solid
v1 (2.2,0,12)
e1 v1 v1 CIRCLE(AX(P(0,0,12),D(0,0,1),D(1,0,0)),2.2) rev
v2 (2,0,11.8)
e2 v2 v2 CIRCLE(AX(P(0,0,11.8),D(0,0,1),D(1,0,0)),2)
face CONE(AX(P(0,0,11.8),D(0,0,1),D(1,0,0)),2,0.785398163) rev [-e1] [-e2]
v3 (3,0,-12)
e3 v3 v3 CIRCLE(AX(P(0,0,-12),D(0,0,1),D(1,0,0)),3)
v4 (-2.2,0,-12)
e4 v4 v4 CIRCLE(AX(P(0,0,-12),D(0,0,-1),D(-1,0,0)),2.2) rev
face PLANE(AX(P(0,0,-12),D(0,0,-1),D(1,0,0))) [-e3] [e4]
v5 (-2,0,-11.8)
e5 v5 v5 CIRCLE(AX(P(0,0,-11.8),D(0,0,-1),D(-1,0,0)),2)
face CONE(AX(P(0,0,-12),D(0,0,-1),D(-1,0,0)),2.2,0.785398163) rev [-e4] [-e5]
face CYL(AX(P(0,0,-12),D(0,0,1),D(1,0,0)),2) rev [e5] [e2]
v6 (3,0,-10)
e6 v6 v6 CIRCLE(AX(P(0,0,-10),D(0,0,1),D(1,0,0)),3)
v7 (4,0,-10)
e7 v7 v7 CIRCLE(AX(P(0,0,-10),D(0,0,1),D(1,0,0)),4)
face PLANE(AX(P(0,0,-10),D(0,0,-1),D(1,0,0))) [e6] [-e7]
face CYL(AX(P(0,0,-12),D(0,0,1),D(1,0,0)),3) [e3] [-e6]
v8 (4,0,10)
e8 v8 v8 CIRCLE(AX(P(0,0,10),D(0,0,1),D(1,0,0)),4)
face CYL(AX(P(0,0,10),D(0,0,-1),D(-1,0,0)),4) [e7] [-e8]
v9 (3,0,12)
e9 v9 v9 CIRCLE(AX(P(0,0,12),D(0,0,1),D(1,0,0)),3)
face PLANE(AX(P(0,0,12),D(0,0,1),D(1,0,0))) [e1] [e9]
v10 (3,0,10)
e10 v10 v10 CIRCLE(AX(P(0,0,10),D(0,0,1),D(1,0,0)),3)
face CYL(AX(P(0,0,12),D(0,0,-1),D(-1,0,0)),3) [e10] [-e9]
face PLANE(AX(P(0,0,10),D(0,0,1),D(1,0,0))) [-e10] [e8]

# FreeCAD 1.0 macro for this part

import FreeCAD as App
import Part
import Sketcher
from FreeCAD import Vector


def edges_at(feature, points):
    """Names of the edges that pass closest to the given points."""
    edges = feature.Shape.Edges
    near = lambda p: min(range(len(edges)), key=lambda i: edges[i].distToShape(Part.Vertex(*p))[0])
    return sorted({f"Edge{near(p) + 1}" for p in points})

doc = App.newDocument("Part")
body = doc.addObject("PartDesign::Body", "Body")

sketch1 = body.newObject("Sketcher::SketchObject", "Sketch")
sketch1.AttachmentSupport = (doc.getObject("XY_Plane"), [""])
sketch1.MapMode = "FlatFace"
sketch1.addGeometry(Part.Circle(Vector(0, 0, 0), Vector(0, 0, 1), 4), False)
sketch1.addConstraint(Sketcher.Constraint("Coincident", 0, 3, -1, 1))
sketch1.addConstraint(Sketcher.Constraint("Diameter", 0, 8.0))
pad1 = body.newObject("PartDesign::Pad", "Pad")
pad1.Profile = sketch1
pad1.Length = 10

sketch2 = body.newObject("Sketcher::SketchObject", "Sketch001")
sketch2.AttachmentSupport = (doc.getObject("XY_Plane"), [""])
sketch2.MapMode = "FlatFace"
sketch2.AttachmentOffset = App.Placement(Vector(0, 0, 10), App.Rotation())
sketch2.addGeometry(Part.Circle(Vector(0, 0, 0), Vector(0, 0, 1), 3), False)
sketch2.addConstraint(Sketcher.Constraint("Coincident", 0, 3, -1, 1))
sketch2.addConstraint(Sketcher.Constraint("Diameter", 0, 6.0))
pad2 = body.newObject("PartDesign::Pad", "Pad001")
pad2.Profile = sketch2
pad2.Length = 2
doc.recompute()

mirrored = body.newObject("PartDesign::Mirrored", "Mirrored")
mirrored.Originals = [pad1, pad2]
mirrored.MirrorPlane = (doc.getObject("XY_Plane"), [""])
body.Tip = mirrored

sketch3 = body.newObject("Sketcher::SketchObject", "Sketch002")
sketch3.AttachmentSupport = (doc.getObject("XY_Plane"), [""])
sketch3.MapMode = "FlatFace"
sketch3.AttachmentOffset = App.Placement(Vector(0, 0, 12), App.Rotation())
sketch3.addGeometry(Part.Circle(Vector(0, 0, 0), Vector(0, 0, 1), 2), False)
sketch3.addConstraint(Sketcher.Constraint("Coincident", 0, 3, -1, 1))
sketch3.addConstraint(Sketcher.Constraint("Diameter", 0, 4.0))
pocket1 = body.newObject("PartDesign::Pocket", "Pocket")
pocket1.Profile = sketch3
pocket1.Type = "ThroughAll"
doc.recompute()

chamfer = body.newObject("PartDesign::Chamfer", "Chamfer")
chamfer.Base = (pocket1, edges_at(pocket1, [(-2, 0, -12), (-2, 0, 12)]))
chamfer.Size = 0.2

doc.recompute()
